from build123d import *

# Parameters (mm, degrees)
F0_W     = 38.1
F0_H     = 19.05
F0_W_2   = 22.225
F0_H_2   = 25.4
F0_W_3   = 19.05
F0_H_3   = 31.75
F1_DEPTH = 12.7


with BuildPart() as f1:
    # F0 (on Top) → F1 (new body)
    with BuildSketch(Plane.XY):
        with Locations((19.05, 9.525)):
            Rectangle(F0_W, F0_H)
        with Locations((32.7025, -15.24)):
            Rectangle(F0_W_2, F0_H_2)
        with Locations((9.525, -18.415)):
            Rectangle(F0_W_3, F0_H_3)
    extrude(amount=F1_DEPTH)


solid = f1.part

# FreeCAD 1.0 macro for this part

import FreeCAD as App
import Part
import Sketcher
from FreeCAD import Vector
Q = App.Units.Quantity

doc = App.newDocument("Part")
body = doc.addObject("PartDesign::Body", "Body")
body.AllowCompound = True

sketch1 = doc.addObject("Sketcher::SketchObject", "Sketch")
body.addObject(sketch1)
sketch1.AttachmentSupport = (doc.XY_Plane, [""])
sketch1.MapMode = "FlatFace"
sketch1.addGeometry(Part.LineSegment(Vector(0, 19.05, 0), Vector(0, 0, 0)), False)
sketch1.addGeometry(Part.LineSegment(Vector(0, 0, 0), Vector(38.1, 0, 0)), False)
sketch1.addGeometry(Part.LineSegment(Vector(38.1, 0, 0), Vector(38.1, 19.05, 0)), False)
sketch1.addGeometry(Part.LineSegment(Vector(38.1, 19.05, 0), Vector(0, 19.05, 0)), False)
sketch1.addGeometry(Part.LineSegment(Vector(21.59, -2.54, 0), Vector(21.59, -27.94, 0)), False)
sketch1.addGeometry(Part.LineSegment(Vector(21.59, -27.94, 0), Vector(43.815, -27.94, 0)), False)
sketch1.addGeometry(Part.LineSegment(Vector(43.815, -27.94, 0), Vector(43.815, -2.54, 0)), False)
sketch1.addGeometry(Part.LineSegment(Vector(43.815, -2.54, 0), Vector(21.59, -2.54, 0)), False)
sketch1.addGeometry(Part.LineSegment(Vector(0, -2.54, 0), Vector(0, -34.29, 0)), False)
sketch1.addGeometry(Part.LineSegment(Vector(0, -34.29, 0), Vector(19.05, -34.29, 0)), False)
sketch1.addGeometry(Part.LineSegment(Vector(19.05, -34.29, 0), Vector(19.05, -2.54, 0)), False)
sketch1.addGeometry(Part.LineSegment(Vector(19.05, -2.54, 0), Vector(0, -2.54, 0)), False)
sketch1.addConstraint(Sketcher.Constraint("Coincident", 0, 2, 1, 1))
sketch1.addConstraint(Sketcher.Constraint("Coincident", 1, 2, 2, 1))
sketch1.addConstraint(Sketcher.Constraint("Coincident", 2, 2, 3, 1))
sketch1.addConstraint(Sketcher.Constraint("Coincident", 3, 2, 0, 1))
sketch1.addConstraint(Sketcher.Constraint("Coincident", 4, 2, 5, 1))
sketch1.addConstraint(Sketcher.Constraint("Coincident", 5, 2, 6, 1))
sketch1.addConstraint(Sketcher.Constraint("Coincident", 6, 2, 7, 1))
sketch1.addConstraint(Sketcher.Constraint("Coincident", 7, 2, 4, 1))
sketch1.addConstraint(Sketcher.Constraint("Coincident", 8, 2, 9, 1))
sketch1.addConstraint(Sketcher.Constraint("Coincident", 9, 2, 10, 1))
sketch1.addConstraint(Sketcher.Constraint("Coincident", 10, 2, 11, 1))
sketch1.addConstraint(Sketcher.Constraint("Coincident", 11, 2, 8, 1))
sketch1.addConstraint(Sketcher.Constraint("Vertical", 0))
sketch1.addConstraint(Sketcher.Constraint("Horizontal", 1))
sketch1.addConstraint(Sketcher.Constraint("Vertical", 2))
sketch1.addConstraint(Sketcher.Constraint("Horizontal", 3))
sketch1.addConstraint(Sketcher.Constraint("Vertical", 4))
sketch1.addConstraint(Sketcher.Constraint("Horizontal", 5))
sketch1.addConstraint(Sketcher.Constraint("Vertical", 6))
sketch1.addConstraint(Sketcher.Constraint("Horizontal", 7))
sketch1.addConstraint(Sketcher.Constraint("Vertical", 8))
sketch1.addConstraint(Sketcher.Constraint("Horizontal", 9))
sketch1.addConstraint(Sketcher.Constraint("Vertical", 10))
sketch1.addConstraint(Sketcher.Constraint("Horizontal", 11))
sketch1.addConstraint(Sketcher.Constraint("Coincident", 0, 2, -1, 1))
sketch1.addConstraint(Sketcher.Constraint("PointOnObject", 8, 2, -2))
sketch1.addConstraint(Sketcher.Constraint("Horizontal", 7, 2, 10, 2))
sketch1.addConstraint(Sketcher.Constraint("Equal", 11, 0))
sketch1.addConstraint(Sketcher.Constraint("DistanceY", 4, 2, 4, 1, Q("1 in")))
sketch1.addConstraint(Sketcher.Constraint("DistanceX", 1, 1, 1, 2, Q("1.5 in")))
sketch1.addConstraint(Sketcher.Constraint("DistanceX", 9, 1, 9, 2, Q("0.75 in")))
sketch1.addConstraint(Sketcher.Constraint("DistanceY", 8, 2, 8, 1, Q("1.25 in")))
sketch1.addConstraint(Sketcher.Constraint("DistanceY", 4, 2, -1, 1, Q("1.1 in")))
sketch1.addConstraint(Sketcher.Constraint("DistanceX", 9, 2, 4, 2, Q("0.1 in")))
sketch1.addConstraint(Sketcher.Constraint("DistanceX", 5, 1, 5, 2, Q("0.875 in")))
pad1 = doc.addObject("PartDesign::Pad", "Pad")
body.addObject(pad1)
pad1.Profile = sketch1
pad1.Length = Q("0.5 in")

doc.recompute()
